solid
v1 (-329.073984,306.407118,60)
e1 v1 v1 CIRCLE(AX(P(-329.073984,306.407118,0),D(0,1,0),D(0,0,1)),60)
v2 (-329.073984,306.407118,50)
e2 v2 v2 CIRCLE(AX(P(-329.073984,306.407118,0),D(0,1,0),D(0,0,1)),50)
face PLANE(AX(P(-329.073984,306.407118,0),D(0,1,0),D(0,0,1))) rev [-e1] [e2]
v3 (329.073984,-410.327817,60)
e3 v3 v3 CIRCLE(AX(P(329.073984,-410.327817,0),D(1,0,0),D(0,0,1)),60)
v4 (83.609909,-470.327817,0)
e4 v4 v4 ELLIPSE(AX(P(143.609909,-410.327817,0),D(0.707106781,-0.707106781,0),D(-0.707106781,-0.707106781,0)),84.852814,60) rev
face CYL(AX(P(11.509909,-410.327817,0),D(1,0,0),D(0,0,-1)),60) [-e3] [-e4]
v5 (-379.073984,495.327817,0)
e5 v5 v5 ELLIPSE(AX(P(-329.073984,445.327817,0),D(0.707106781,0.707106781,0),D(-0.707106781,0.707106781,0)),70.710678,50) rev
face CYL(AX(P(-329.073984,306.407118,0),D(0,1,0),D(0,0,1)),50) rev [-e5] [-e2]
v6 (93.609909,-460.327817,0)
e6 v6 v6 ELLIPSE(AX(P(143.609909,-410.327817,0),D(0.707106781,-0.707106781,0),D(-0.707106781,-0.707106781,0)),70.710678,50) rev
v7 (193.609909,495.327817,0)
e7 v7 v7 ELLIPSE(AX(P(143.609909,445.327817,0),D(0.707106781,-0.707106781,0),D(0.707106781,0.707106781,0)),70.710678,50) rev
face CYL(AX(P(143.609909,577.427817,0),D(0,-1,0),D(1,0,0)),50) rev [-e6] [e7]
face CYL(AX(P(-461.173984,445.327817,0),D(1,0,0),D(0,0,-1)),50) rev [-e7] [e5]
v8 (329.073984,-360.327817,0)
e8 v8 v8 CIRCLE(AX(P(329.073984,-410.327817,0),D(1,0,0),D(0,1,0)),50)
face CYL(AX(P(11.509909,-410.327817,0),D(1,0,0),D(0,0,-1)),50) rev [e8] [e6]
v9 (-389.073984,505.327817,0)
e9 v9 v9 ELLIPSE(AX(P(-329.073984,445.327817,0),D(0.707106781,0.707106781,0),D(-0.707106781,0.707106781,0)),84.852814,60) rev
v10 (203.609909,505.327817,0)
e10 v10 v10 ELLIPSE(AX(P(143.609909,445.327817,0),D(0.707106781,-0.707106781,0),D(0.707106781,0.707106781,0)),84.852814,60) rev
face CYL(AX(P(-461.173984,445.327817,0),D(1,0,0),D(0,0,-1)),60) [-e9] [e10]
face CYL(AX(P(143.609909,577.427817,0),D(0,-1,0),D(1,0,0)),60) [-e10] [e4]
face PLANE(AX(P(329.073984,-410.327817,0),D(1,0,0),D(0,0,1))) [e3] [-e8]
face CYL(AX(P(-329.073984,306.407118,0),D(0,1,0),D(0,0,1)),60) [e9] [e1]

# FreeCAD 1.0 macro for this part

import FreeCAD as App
import Part
import Sketcher
from FreeCAD import Vector

doc = App.newDocument("Part")
body = doc.addObject("PartDesign::Body", "Body")

sketch1 = body.newObject("Sketcher::SketchObject", "Sketch")
sketch1.AttachmentSupport = (doc.getObject("XZ_Plane"), [""])
sketch1.MapMode = "FlatFace"
sketch1.AttachmentOffset = App.Placement(Vector(0, 0, -306.407118), App.Rotation())
sketch1.addGeometry(Part.Circle(Vector(-329.073984, 0, 0), Vector(0, 0, 1), 60), False)
sketch1.addGeometry(Part.Circle(Vector(-329.073984, 0, 0), Vector(0, 0, 1), 50), False)
sketch1.addConstraint(Sketcher.Constraint("Coincident", 1, 3, 0, 3))
sketch1.addConstraint(Sketcher.Constraint("PointOnObject", 0, 3, -1))
sketch1.addConstraint(Sketcher.Constraint("Diameter", 0, 120.0))
sketch1.addConstraint(Sketcher.Constraint("Diameter", 1, 100.0))
sketch1.addConstraint(Sketcher.Constraint("DistanceX", 0, 3, -1, 1, 329.073984))

sketch2 = body.newObject("Sketcher::SketchObject", "Sketch001")
sketch2.AttachmentSupport = (doc.getObject("XY_Plane"), [""])
sketch2.MapMode = "FlatFace"
sketch2.addGeometry(Part.LineSegment(Vector(-329.073984, 306.407118, 0), Vector(-329.073984, 445.327817, 0)), False)
sketch2.addGeometry(Part.LineSegment(Vector(-329.073984, 445.327817, 0), Vector(143.609909, 445.327817, 0)), False)
sketch2.addGeometry(Part.LineSegment(Vector(143.609909, 445.327817, 0), Vector(143.609909, -410.327817, 0)), False)
sketch2.addGeometry(Part.LineSegment(Vector(143.609909, -410.327817, 0), Vector(329.073984, -410.327817, 0)), False)
sketch2.addConstraint(Sketcher.Constraint("Coincident", 0, 2, 1, 1))
sketch2.addConstraint(Sketcher.Constraint("Coincident", 1, 2, 2, 1))
sketch2.addConstraint(Sketcher.Constraint("Coincident", 2, 2, 3, 1))
sketch2.addConstraint(Sketcher.Constraint("Vertical", 0))
sketch2.addConstraint(Sketcher.Constraint("Horizontal", 1))
sketch2.addConstraint(Sketcher.Constraint("Vertical", 2))
sketch2.addConstraint(Sketcher.Constraint("Horizontal", 3))
sketch2.addConstraint(Sketcher.Constraint("DistanceY", 0, 1, 0, 2, 138.920699))
sketch2.addConstraint(Sketcher.Constraint("DistanceX", 1, 1, 1, 2, 472.683892))
sketch2.addConstraint(Sketcher.Constraint("DistanceX", 3, 1, 3, 2, 185.464075))
sketch2.addConstraint(Sketcher.Constraint("DistanceY", 2, 2, 2, 1, 855.655635))
sketch2.addConstraint(Sketcher.Constraint("DistanceY", -1, 1, 0, 1, 306.407118))
sketch2.addConstraint(Sketcher.Constraint("DistanceX", -1, 1, 1, 2, 143.609909))
doc.recompute()

additivepipe = body.newObject("PartDesign::AdditivePipe", "AdditivePipe")
additivepipe.Profile = sketch1
additivepipe.Spine = (sketch2, ["Edge1", "Edge2", "Edge3", "Edge4"])
additivepipe.Transition = "Right corner"

doc.recompute()
